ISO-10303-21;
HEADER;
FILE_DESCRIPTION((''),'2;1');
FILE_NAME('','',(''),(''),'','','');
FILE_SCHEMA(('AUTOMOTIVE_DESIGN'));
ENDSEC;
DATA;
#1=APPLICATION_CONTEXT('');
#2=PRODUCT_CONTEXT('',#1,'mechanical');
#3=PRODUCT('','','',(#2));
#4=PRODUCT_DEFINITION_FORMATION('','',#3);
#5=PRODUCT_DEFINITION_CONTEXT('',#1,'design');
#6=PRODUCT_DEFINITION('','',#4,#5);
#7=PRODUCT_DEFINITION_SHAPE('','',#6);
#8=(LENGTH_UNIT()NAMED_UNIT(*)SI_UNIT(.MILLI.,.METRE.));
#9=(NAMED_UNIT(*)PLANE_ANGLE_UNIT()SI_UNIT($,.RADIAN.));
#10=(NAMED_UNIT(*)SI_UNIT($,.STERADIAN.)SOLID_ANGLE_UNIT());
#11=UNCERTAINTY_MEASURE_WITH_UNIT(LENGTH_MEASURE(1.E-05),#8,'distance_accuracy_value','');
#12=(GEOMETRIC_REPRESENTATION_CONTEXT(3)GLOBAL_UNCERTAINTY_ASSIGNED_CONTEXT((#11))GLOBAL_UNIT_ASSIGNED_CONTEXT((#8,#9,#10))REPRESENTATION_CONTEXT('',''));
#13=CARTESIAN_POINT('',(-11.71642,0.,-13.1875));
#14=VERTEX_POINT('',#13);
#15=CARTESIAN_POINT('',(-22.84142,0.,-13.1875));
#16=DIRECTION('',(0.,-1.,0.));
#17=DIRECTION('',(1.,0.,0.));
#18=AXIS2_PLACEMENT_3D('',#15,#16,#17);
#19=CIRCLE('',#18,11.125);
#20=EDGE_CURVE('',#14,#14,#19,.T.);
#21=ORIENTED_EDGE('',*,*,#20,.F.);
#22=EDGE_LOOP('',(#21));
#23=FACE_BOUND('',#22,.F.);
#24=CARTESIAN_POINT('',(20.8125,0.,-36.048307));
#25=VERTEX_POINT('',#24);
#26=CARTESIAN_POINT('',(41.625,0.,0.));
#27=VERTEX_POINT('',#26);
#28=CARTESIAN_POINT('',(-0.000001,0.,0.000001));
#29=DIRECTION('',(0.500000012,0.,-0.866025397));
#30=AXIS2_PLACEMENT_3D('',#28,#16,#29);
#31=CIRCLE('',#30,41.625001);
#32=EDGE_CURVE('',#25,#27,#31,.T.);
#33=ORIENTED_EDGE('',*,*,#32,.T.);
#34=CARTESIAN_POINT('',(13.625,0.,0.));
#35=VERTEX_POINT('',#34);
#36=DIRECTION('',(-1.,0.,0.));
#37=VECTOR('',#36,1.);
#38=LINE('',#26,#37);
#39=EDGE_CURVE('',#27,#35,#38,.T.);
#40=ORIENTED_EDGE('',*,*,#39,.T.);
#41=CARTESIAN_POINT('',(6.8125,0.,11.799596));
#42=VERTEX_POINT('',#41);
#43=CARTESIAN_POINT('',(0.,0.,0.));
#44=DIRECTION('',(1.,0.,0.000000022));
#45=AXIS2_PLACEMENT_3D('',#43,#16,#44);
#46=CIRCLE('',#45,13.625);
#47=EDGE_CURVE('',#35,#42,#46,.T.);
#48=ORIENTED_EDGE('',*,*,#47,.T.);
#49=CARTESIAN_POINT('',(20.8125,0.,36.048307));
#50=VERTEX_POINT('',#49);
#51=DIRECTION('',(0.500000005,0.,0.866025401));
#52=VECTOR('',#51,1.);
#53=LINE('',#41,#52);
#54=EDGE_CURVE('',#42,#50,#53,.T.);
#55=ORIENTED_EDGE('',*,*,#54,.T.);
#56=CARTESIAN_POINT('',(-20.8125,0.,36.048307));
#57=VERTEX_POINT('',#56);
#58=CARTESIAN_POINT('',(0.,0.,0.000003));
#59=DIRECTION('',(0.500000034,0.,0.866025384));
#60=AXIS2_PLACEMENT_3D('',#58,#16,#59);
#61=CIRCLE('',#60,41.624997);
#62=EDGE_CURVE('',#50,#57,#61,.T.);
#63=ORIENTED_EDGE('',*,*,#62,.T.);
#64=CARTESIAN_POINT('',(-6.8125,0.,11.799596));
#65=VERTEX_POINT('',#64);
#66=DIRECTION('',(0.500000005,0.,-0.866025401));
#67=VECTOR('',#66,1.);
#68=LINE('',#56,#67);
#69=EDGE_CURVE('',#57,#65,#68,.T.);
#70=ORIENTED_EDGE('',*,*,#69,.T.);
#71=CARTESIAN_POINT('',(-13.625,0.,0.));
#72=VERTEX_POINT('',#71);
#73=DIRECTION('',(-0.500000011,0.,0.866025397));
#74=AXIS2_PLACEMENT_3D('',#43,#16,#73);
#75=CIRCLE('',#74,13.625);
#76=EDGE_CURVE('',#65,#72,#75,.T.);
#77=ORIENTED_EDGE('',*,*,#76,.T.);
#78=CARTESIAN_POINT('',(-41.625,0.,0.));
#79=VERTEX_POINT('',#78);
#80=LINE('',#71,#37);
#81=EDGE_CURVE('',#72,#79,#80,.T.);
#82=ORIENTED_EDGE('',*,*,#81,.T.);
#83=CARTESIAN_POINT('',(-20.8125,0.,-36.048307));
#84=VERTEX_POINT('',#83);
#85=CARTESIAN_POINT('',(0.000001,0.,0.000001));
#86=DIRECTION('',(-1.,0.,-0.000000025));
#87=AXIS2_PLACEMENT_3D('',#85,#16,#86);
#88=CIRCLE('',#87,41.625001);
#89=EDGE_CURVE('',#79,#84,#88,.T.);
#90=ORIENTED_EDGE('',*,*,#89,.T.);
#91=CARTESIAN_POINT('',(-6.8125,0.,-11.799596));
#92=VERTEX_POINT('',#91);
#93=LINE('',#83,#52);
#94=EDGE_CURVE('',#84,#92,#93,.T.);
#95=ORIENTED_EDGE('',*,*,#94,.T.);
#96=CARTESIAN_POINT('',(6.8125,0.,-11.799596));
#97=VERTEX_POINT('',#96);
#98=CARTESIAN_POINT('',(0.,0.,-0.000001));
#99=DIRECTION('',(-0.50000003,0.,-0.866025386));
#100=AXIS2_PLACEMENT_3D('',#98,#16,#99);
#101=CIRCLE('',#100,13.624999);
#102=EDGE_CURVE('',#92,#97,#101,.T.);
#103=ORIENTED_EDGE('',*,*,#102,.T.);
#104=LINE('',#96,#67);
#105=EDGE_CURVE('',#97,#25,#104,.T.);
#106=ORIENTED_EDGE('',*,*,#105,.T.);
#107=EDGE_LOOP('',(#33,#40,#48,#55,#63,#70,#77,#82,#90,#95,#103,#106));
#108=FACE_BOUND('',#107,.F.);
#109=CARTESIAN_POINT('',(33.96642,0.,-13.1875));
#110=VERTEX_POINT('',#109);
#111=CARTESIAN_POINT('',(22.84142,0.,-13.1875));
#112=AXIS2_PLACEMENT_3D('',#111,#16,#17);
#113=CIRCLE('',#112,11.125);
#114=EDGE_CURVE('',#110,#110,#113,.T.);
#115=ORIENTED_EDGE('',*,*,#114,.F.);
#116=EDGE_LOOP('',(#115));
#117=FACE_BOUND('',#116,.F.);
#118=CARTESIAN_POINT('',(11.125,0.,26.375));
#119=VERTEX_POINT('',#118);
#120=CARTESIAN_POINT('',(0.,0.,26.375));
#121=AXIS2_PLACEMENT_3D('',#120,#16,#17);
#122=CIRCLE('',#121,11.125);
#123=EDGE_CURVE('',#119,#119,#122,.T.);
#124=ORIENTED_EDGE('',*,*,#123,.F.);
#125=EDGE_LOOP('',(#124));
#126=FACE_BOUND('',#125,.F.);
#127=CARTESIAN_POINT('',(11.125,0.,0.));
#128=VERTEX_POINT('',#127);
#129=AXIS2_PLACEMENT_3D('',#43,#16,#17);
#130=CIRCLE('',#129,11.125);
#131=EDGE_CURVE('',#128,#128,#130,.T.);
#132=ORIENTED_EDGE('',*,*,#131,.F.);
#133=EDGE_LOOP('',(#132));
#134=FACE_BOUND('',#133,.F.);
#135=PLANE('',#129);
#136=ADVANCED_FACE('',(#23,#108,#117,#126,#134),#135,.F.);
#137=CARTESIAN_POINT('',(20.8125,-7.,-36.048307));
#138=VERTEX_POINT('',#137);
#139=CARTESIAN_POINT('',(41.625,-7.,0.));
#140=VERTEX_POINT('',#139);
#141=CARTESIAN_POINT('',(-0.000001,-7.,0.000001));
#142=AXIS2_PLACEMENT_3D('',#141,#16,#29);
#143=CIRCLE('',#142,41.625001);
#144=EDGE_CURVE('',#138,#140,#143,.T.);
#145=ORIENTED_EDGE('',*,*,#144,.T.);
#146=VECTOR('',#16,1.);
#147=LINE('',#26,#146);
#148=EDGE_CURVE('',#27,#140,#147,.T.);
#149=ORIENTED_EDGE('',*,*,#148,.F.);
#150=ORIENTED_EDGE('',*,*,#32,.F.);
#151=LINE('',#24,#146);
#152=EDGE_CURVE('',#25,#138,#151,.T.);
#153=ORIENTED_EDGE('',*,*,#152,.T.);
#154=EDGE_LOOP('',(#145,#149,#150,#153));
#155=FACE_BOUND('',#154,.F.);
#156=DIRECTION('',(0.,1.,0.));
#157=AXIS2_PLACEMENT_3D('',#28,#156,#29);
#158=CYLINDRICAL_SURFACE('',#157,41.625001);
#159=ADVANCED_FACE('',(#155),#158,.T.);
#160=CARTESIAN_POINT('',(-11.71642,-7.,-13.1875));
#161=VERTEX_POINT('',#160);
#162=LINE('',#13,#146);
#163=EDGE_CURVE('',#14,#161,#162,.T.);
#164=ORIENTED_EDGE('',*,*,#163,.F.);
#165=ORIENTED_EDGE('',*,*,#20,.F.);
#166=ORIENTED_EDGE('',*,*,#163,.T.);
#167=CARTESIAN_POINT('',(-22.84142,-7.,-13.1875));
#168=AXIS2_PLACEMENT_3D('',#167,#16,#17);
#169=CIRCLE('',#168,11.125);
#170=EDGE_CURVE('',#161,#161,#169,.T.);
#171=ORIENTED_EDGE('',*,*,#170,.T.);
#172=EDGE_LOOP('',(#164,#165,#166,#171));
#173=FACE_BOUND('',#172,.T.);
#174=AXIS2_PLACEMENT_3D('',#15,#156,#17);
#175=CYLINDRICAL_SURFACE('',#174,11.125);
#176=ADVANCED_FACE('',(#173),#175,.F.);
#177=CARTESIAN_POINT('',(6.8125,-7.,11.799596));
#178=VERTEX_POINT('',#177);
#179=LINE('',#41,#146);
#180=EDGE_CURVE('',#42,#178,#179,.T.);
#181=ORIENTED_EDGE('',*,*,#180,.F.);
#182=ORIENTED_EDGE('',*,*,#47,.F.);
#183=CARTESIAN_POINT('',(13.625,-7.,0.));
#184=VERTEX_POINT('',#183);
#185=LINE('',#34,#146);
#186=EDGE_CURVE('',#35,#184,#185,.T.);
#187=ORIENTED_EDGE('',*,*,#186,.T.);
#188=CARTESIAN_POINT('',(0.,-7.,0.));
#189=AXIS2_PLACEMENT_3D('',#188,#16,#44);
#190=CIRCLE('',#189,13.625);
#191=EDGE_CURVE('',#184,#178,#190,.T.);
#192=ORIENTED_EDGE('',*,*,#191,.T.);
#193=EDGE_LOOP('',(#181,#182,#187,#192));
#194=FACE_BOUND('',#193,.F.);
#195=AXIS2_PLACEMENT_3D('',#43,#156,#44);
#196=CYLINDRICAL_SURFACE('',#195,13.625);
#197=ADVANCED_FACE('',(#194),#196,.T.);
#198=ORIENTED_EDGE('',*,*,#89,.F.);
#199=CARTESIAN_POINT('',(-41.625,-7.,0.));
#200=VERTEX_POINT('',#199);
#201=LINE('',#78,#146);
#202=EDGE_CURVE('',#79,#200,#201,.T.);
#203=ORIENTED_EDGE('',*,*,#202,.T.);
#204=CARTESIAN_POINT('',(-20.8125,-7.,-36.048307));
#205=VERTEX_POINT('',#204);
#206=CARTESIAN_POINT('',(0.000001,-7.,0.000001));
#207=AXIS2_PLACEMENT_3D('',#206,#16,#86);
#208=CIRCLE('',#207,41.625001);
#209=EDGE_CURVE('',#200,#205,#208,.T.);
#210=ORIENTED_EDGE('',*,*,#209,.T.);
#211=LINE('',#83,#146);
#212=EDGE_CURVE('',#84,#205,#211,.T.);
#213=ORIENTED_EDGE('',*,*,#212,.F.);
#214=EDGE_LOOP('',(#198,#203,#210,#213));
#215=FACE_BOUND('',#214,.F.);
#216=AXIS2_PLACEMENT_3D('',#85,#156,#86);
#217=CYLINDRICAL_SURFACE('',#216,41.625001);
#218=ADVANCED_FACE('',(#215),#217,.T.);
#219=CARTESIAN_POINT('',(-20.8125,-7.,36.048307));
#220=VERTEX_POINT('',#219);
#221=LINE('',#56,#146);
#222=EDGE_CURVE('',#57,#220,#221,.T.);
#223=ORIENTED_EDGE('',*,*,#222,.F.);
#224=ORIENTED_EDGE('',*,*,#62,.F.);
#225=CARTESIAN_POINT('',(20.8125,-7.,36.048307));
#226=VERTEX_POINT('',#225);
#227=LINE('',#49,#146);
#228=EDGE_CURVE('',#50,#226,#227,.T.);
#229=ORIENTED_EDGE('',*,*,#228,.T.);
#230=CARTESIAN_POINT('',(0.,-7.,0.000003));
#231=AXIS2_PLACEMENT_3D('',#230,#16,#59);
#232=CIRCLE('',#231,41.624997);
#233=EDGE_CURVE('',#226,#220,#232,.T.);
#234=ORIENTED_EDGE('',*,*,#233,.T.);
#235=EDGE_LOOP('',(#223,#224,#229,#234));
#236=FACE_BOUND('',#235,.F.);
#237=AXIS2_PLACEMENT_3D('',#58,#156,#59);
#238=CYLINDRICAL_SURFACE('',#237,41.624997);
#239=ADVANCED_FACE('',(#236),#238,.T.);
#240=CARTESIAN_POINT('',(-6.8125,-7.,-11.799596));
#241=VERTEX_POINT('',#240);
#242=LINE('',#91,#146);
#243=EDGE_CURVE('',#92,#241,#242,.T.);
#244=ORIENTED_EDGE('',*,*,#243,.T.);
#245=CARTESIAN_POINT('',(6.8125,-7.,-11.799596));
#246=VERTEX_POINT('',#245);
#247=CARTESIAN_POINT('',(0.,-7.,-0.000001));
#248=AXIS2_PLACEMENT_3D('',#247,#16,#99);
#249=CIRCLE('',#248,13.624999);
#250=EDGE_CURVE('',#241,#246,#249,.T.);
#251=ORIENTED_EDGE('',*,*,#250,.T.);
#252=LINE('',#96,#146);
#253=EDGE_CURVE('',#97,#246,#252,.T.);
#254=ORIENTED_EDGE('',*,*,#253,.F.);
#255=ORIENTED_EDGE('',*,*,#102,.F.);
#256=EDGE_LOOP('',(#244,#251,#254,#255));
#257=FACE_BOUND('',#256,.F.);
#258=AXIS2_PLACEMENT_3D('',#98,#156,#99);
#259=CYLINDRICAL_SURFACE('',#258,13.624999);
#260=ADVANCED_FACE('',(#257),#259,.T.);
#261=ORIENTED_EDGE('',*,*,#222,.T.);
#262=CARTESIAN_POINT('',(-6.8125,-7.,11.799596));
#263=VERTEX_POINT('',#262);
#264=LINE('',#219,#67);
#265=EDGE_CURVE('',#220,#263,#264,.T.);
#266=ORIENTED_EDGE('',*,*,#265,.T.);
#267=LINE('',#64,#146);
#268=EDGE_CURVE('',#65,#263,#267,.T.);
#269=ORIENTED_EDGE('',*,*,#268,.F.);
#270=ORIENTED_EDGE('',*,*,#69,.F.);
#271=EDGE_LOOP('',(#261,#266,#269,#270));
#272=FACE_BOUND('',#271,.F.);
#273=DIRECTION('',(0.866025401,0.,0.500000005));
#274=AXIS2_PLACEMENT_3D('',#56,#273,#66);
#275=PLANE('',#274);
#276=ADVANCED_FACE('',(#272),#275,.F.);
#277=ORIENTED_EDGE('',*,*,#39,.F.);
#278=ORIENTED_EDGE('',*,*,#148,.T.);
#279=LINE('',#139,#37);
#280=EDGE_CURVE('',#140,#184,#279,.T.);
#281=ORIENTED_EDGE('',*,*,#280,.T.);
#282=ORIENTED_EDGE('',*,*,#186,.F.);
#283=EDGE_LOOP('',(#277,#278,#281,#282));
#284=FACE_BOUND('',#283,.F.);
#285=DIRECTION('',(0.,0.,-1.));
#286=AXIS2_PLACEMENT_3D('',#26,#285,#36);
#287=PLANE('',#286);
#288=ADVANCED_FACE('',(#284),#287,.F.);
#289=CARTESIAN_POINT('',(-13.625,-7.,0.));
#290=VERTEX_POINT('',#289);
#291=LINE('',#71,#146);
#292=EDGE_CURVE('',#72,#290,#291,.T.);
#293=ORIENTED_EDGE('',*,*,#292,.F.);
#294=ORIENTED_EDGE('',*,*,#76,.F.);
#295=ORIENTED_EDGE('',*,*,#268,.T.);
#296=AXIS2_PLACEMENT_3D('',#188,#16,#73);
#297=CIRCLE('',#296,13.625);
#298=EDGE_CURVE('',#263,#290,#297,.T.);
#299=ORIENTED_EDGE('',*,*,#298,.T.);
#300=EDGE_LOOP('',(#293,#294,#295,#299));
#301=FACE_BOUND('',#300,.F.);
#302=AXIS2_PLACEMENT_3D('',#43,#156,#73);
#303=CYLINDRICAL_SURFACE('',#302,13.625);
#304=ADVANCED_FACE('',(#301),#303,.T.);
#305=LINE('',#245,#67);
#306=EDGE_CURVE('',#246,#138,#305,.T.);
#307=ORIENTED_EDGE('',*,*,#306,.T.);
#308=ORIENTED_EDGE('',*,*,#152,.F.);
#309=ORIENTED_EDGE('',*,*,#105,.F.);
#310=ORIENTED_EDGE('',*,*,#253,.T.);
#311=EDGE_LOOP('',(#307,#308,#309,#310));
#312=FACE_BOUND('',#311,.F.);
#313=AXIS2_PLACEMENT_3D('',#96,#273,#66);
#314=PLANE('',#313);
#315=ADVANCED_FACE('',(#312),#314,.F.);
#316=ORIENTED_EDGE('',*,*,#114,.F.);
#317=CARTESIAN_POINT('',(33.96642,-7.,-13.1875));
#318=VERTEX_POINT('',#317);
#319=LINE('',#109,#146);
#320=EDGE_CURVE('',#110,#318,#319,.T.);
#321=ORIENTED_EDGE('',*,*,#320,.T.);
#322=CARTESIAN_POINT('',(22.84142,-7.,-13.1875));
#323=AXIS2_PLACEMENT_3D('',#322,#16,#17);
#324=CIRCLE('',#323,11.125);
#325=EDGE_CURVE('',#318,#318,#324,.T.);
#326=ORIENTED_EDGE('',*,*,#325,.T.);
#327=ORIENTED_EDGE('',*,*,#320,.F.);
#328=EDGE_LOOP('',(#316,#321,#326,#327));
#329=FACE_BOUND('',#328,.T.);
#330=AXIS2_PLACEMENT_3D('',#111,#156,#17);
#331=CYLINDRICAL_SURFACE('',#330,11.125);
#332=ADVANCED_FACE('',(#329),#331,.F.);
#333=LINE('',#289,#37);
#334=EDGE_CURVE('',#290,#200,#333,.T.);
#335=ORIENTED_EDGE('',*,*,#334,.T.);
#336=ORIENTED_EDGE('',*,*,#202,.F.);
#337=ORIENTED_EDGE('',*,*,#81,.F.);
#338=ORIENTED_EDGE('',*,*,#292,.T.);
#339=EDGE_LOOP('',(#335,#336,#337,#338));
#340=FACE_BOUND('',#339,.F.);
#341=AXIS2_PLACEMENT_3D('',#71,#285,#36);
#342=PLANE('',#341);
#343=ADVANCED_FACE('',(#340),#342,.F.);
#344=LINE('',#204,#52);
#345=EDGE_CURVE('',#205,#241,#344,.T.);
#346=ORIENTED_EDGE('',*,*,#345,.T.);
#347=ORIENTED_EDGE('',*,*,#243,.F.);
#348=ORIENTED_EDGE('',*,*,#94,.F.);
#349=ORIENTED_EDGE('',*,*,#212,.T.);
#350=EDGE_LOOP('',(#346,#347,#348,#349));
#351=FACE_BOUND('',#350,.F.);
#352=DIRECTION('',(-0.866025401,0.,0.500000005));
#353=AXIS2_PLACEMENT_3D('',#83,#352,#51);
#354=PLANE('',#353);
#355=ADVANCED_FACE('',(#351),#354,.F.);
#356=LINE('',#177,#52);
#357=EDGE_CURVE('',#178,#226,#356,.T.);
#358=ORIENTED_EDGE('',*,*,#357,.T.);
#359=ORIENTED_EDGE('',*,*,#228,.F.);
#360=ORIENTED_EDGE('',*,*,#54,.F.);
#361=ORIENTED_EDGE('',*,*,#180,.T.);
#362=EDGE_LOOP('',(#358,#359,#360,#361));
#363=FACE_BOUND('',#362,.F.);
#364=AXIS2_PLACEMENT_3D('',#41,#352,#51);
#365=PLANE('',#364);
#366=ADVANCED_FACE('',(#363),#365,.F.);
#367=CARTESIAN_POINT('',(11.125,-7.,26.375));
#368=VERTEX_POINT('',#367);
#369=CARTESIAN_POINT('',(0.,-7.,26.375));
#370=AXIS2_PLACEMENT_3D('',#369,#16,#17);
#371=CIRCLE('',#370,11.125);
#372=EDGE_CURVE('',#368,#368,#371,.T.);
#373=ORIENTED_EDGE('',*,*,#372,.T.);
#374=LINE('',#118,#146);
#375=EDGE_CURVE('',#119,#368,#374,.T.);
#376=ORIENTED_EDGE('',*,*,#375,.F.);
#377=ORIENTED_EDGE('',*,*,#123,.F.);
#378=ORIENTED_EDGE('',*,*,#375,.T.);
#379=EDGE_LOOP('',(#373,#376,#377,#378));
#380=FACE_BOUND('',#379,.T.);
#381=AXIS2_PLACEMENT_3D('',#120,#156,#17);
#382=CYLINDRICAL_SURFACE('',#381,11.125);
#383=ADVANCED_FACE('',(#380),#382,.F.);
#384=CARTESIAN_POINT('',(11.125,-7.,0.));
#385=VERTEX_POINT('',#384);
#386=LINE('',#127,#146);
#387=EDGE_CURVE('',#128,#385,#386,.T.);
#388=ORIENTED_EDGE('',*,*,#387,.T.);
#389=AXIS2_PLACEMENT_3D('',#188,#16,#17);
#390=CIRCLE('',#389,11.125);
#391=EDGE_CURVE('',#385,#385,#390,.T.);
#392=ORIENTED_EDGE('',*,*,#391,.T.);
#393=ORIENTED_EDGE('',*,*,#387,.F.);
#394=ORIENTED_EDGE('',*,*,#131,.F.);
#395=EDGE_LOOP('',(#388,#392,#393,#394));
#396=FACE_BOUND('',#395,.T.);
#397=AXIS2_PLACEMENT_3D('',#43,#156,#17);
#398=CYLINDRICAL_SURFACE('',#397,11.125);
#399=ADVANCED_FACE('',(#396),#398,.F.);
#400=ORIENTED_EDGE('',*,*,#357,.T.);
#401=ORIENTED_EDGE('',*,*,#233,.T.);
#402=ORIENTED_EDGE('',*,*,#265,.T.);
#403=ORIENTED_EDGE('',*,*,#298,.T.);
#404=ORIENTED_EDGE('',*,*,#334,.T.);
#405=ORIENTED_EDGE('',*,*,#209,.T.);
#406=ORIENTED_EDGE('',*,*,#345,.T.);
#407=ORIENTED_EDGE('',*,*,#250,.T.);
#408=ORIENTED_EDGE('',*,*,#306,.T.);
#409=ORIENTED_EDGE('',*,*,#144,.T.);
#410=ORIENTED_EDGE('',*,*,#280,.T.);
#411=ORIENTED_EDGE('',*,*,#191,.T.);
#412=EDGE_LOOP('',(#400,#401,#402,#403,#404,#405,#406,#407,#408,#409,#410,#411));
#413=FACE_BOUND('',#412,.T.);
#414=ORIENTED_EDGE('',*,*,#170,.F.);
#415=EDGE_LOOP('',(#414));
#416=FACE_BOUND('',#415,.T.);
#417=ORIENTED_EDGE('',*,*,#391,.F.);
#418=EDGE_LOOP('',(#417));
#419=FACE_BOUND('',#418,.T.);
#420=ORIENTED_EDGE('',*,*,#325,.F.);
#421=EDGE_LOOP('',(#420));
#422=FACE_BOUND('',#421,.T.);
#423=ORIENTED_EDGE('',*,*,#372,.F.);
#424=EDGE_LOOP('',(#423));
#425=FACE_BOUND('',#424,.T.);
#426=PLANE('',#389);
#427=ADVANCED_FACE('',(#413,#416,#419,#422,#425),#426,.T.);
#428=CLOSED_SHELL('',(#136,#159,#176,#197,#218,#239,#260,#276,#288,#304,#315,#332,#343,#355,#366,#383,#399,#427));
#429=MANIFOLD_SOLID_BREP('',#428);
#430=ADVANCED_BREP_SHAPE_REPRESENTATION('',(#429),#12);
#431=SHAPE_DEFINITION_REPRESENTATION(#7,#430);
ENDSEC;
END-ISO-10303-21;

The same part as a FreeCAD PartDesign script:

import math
import FreeCAD as App
import Part
import Sketcher
from FreeCAD import Vector
Q = App.Units.Quantity

doc = App.newDocument("Part")
body = doc.addObject("PartDesign::Body", "Body")

# Sketch on XZ plane
sketch1 = body.newObject("Sketcher::SketchObject", "Sketch")
sketch1.AttachmentSupport = (doc.getObject("XZ_Plane"), [""])
sketch1.MapMode = "FlatFace"
sketch1.addGeometry(Part.ArcOfCircle(Part.Circle(Vector(0, -0.000001, 0), Vector(0, 0, 1), 13.624999), math.radians(-120.000002), math.radians(-59.999998)), False)
sketch1.addGeometry(Part.LineSegment(Vector(6.8125, -11.799596, 0), Vector(20.8125, -36.048307, 0)), False)
sketch1.addGeometry(Part.ArcOfCircle(Part.Circle(Vector(-0.000001, 0.000001, 0), Vector(0, 0, 1), 41.625001), math.radians(-59.999999), math.radians(-0.000001)), False)
sketch1.addGeometry(Part.LineSegment(Vector(41.625, 0, 0), Vector(13.625, 0, 0)), False)
sketch1.addGeometry(Part.ArcOfCircle(Part.Circle(Vector(0, 0, 0), Vector(0, 0, 1), 13.625), math.radians(0.000001), math.radians(59.999999)), False)
sketch1.addGeometry(Part.LineSegment(Vector(6.8125, 11.799596, 0), Vector(20.8125, 36.048307, 0)), False)
sketch1.addGeometry(Part.ArcOfCircle(Part.Circle(Vector(0, 0.000003, 0), Vector(0, 0, 1), 41.624997), math.radians(59.999998), math.radians(120.000002)), False)
sketch1.addGeometry(Part.LineSegment(Vector(-20.8125, 36.048307, 0), Vector(-6.8125, 11.799596, 0)), False)
sketch1.addGeometry(Part.ArcOfCircle(Part.Circle(Vector(0, 0, 0), Vector(0, 0, 1), 13.625), math.radians(120.000001), math.radians(179.999999)), False)
sketch1.addGeometry(Part.LineSegment(Vector(-13.625, 0, 0), Vector(-41.625, 0, 0)), False)
sketch1.addGeometry(Part.ArcOfCircle(Part.Circle(Vector(0.000001, 0.000001, 0), Vector(0, 0, 1), 41.625001), math.radians(-179.999999), math.radians(-120.000001)), False)
sketch1.addGeometry(Part.LineSegment(Vector(-20.8125, -36.048307, 0), Vector(-6.8125, -11.799596, 0)), False)
sketch1.addGeometry(Part.Circle(Vector(-22.84142, -13.1875, 0), Vector(0, 0, 1), 11.125), False)
sketch1.addGeometry(Part.Circle(Vector(22.84142, -13.1875, 0), Vector(0, 0, 1), 11.125), False)
sketch1.addGeometry(Part.Circle(Vector(0, 0, 0), Vector(0, 0, 1), 11.125), False)
sketch1.addGeometry(Part.Circle(Vector(0, 26.375, 0), Vector(0, 0, 1), 11.125), False)
sketch1.addConstraint(Sketcher.Constraint("Coincident", 0, 2, 1, 1))
sketch1.addConstraint(Sketcher.Constraint("Coincident", 1, 2, 2, 1))
sketch1.addConstraint(Sketcher.Constraint("Coincident", 2, 2, 3, 1))
sketch1.addConstraint(Sketcher.Constraint("Coincident", 3, 2, 4, 1))
sketch1.addConstraint(Sketcher.Constraint("Coincident", 4, 2, 5, 1))
sketch1.addConstraint(Sketcher.Constraint("Coincident", 5, 2, 6, 1))
sketch1.addConstraint(Sketcher.Constraint("Coincident", 6, 2, 7, 1))
sketch1.addConstraint(Sketcher.Constraint("Coincident", 7, 2, 8, 1))
sketch1.addConstraint(Sketcher.Constraint("Coincident", 8, 2, 9, 1))
sketch1.addConstraint(Sketcher.Constraint("Coincident", 9, 2, 10, 1))
sketch1.addConstraint(Sketcher.Constraint("Coincident", 10, 2, 11, 1))
sketch1.addConstraint(Sketcher.Constraint("Coincident", 11, 2, 0, 1))
sketch1.addConstraint(Sketcher.Constraint("Horizontal", 3))
sketch1.addConstraint(Sketcher.Constraint("Horizontal", 9))
sketch1.addConstraint(Sketcher.Constraint("Coincident", 0, 3, -1, 1))
sketch1.addConstraint(Sketcher.Constraint("Coincident", 2, 3, -1, 1))
sketch1.addConstraint(Sketcher.Constraint("Coincident", 4, 3, -1, 1))
sketch1.addConstraint(Sketcher.Constraint("Coincident", 6, 3, -1, 1))
sketch1.addConstraint(Sketcher.Constraint("Coincident", 8, 3, -1, 1))
sketch1.addConstraint(Sketcher.Constraint("Coincident", 10, 3, -1, 1))
sketch1.addConstraint(Sketcher.Constraint("Coincident", 14, 3, -1, 1))
sketch1.addConstraint(Sketcher.Constraint("Equal", 0, 4))
sketch1.addConstraint(Sketcher.Constraint("Equal", 4, 8))
sketch1.addConstraint(Sketcher.Constraint("Equal", 2, 10))
sketch1.addConstraint(Sketcher.Constraint("Equal", 12, 13))
sketch1.addConstraint(Sketcher.Constraint("Equal", 13, 14))
sketch1.addConstraint(Sketcher.Constraint("Equal", 14, 15))
sketch1.addConstraint(Sketcher.Constraint("Symmetric", 1, 2, 6, 2, -1, 1))
sketch1.addConstraint(Sketcher.Constraint("Symmetric", 12, 3, 13, 3, -2))
sketch1.addConstraint(Sketcher.Constraint("PointOnObject", 15, 3, -2))
sketch1.addConstraint(Sketcher.Constraint("PointOnObject", 2, 2, -1))
sketch1.addConstraint(Sketcher.Constraint("PointOnObject", 8, 2, -1))
sketch1.addConstraint(Sketcher.Constraint("Parallel", 1, 7))
sketch1.addConstraint(Sketcher.Constraint("Parallel", 5, 11))
sketch1.addConstraint(Sketcher.Constraint("Horizontal", 5, 2, 6, 2))
sketch1.addConstraint(Sketcher.Constraint("Horizontal", 4, 2, 7, 2))
sketch1.addConstraint(Sketcher.Constraint("Horizontal", 1, 2, 10, 2))
sketch1.addConstraint(Sketcher.Constraint("Diameter", 12, 22.25))
sketch1.addConstraint(Sketcher.Constraint("DistanceX", 3, 2, 3, 1, 28.0))
sketch1.addConstraint(Sketcher.Constraint("Angle", 1, Q("-60 deg")))
sketch1.addConstraint(Sketcher.Constraint("Radius", 0, 13.624999))
sketch1.addConstraint(Sketcher.Constraint("DistanceY", -1, 1, 15, 3, 26.375))
sketch1.addConstraint(Sketcher.Constraint("DistanceX", 6, 2, 4, 2, 27.625))
sketch1.addConstraint(Sketcher.Constraint("DistanceY", 12, 3, -1, 1, 13.1875))
sketch1.addConstraint(Sketcher.Constraint("DistanceX", 12, 3, -1, 1, 22.84142))
pad1 = body.newObject("PartDesign::Pad", "Pad")
pad1.Profile = sketch1
pad1.Length = 7

doc.recompute()
